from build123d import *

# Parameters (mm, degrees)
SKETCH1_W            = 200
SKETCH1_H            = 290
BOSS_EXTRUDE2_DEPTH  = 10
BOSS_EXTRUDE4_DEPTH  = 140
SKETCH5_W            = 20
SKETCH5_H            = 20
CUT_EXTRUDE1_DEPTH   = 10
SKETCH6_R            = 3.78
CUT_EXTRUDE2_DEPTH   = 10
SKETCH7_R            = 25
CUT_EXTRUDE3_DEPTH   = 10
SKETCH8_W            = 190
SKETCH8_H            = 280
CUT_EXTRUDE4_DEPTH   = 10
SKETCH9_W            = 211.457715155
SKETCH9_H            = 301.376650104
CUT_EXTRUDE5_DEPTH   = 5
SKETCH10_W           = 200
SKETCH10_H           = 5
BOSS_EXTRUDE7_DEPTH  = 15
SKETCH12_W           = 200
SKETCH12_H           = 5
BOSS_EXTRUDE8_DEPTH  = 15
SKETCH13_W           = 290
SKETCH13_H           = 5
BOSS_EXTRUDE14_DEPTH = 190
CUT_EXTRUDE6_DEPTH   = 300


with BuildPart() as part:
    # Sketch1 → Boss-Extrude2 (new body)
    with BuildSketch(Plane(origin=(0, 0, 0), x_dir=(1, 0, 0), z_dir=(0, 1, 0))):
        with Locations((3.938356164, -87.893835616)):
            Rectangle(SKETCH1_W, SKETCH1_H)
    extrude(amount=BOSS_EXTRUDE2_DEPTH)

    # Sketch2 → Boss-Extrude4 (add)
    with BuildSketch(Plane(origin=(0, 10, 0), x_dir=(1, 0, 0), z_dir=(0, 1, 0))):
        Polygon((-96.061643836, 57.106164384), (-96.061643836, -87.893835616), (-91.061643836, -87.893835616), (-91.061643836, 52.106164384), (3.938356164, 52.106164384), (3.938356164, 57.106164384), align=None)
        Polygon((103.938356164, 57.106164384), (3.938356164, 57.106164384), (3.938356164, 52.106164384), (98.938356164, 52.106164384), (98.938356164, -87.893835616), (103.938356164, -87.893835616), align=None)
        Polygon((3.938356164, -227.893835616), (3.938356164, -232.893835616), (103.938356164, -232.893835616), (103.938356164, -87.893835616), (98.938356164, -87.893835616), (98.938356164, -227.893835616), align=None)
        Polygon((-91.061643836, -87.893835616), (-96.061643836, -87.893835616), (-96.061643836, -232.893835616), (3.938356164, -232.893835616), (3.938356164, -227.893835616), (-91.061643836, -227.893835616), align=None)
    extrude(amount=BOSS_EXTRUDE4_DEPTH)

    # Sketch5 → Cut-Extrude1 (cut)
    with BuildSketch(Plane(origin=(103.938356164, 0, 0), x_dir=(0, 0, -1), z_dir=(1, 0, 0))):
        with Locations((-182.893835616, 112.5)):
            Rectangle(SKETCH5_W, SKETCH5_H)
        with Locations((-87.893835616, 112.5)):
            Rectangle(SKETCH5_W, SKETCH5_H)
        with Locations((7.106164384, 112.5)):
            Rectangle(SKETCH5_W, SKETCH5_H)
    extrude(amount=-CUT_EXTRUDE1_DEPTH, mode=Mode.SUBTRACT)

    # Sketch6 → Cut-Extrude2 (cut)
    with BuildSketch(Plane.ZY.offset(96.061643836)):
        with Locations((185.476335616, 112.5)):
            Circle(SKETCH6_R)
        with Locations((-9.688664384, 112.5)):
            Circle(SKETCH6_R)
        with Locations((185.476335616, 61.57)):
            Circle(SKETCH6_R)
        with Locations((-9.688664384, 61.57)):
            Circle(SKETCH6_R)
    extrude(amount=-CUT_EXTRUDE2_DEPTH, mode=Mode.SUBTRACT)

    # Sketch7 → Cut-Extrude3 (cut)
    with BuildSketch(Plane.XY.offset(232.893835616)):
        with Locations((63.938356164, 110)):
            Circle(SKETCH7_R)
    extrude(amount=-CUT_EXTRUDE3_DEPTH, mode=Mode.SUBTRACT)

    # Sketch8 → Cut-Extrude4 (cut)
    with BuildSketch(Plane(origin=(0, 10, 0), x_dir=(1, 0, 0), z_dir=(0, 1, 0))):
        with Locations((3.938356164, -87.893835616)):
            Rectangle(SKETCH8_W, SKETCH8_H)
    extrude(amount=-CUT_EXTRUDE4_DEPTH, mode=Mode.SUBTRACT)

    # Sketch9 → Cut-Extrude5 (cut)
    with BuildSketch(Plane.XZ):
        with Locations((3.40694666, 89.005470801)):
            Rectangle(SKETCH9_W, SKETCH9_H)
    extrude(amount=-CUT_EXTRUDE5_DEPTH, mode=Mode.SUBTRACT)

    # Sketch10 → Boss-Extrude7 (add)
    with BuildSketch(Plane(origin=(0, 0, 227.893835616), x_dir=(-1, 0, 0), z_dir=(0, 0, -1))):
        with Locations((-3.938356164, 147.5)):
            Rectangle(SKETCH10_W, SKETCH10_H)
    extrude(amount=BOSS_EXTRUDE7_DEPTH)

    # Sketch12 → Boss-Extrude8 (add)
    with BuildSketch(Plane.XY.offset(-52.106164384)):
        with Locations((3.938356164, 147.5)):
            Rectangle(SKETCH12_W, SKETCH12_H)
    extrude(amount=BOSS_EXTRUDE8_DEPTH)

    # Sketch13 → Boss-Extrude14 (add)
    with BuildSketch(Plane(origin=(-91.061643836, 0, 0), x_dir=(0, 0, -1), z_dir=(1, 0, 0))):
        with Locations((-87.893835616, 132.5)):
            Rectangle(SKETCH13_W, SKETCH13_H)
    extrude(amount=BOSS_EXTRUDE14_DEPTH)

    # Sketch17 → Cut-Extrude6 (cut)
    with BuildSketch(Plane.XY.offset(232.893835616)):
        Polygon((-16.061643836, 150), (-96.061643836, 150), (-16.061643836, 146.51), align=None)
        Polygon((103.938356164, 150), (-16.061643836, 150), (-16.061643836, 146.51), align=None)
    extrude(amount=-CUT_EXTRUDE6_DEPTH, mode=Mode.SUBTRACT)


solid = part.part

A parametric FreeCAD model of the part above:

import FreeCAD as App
import Part
import Sketcher

doc = App.newDocument("Part")
body = doc.addObject("PartDesign::Body", "Body")

# Sketch on XZ plane
sketch1 = doc.addObject("Sketcher::SketchObject", "Sketch")
body.addObject(sketch1)
sketch1.AttachmentSupport = (doc.XZ_Plane, [""])
sketch1.MapMode = "FlatFace"
sketch1.addGeometry([
    Part.LineSegment(App.Vector(-96, -57, 0), App.Vector(-96, 233, 0)),
    Part.LineSegment(App.Vector(-96, 233, 0), App.Vector(104, 233, 0)),
    Part.LineSegment(App.Vector(104, 233, 0), App.Vector(104, -57, 0)),
    Part.LineSegment(App.Vector(104, -57, 0), App.Vector(-96, -57, 0)),
], False)
sketch1.addConstraint([
    Sketcher.Constraint("Coincident", 0, 2, 1, 1),
    Sketcher.Constraint("Coincident", 1, 2, 2, 1),
    Sketcher.Constraint("Coincident", 2, 2, 3, 1),
    Sketcher.Constraint("Coincident", 3, 2, 0, 1),
    Sketcher.Constraint("Vertical", 0),
    Sketcher.Constraint("Horizontal", 1),
    Sketcher.Constraint("Vertical", 2),
    Sketcher.Constraint("Horizontal", 3),
    Sketcher.Constraint("DistanceX", 1, 1, 1, 2, 200.0),
    Sketcher.Constraint("DistanceY", 0, 1, 0, 2, 290.0),
    Sketcher.Constraint("DistanceX", 0, 2, -1, 1, 96.061644),
    Sketcher.Constraint("DistanceY", -1, 1, 0, 2, 232.893836),
])
pad1 = doc.addObject("PartDesign::Pad", "Pad")
body.addObject(pad1)
pad1.Profile = sketch1
pad1.Length = 10
pad1.Reversed = True

# Sketch on XZ plane
sketch2 = doc.addObject("Sketcher::SketchObject", "Sketch001")
body.addObject(sketch2)
sketch2.AttachmentSupport = (doc.XZ_Plane, [""])
sketch2.MapMode = "FlatFace"
sketch2.AttachmentOffset = App.Placement(App.Vector(0, 0, -10), App.Rotation())
sketch2.addGeometry([
    Part.LineSegment(App.Vector(-96, -57, 0), App.Vector(-96, 233, 0)),  # 0
    Part.LineSegment(App.Vector(-96, 233, 0), App.Vector(104, 233, 0)),  # 1
    Part.LineSegment(App.Vector(104, 233, 0), App.Vector(104, -57, 0)),  # 2
    Part.LineSegment(App.Vector(104, -57, 0), App.Vector(-96, -57, 0)),  # 3
    Part.LineSegment(App.Vector(-91, -52, 0), App.Vector(99, -52, 0)),  # 4
    Part.LineSegment(App.Vector(99, -52, 0), App.Vector(99, 228, 0)),  # 5
    Part.LineSegment(App.Vector(99, 228, 0), App.Vector(-91, 228, 0)),  # 6
    Part.LineSegment(App.Vector(-91, 228, 0), App.Vector(-91, -52, 0)),  # 7
], False)
sketch2.addConstraint([
    Sketcher.Constraint("Coincident", 0, 2, 1, 1),
    Sketcher.Constraint("Coincident", 1, 2, 2, 1),
    Sketcher.Constraint("Coincident", 2, 2, 3, 1),
    Sketcher.Constraint("Coincident", 3, 2, 0, 1),
    Sketcher.Constraint("Coincident", 4, 2, 5, 1),
    Sketcher.Constraint("Coincident", 5, 2, 6, 1),
    Sketcher.Constraint("Coincident", 6, 2, 7, 1),
    Sketcher.Constraint("Coincident", 7, 2, 4, 1),
    Sketcher.Constraint("Vertical", 0),
    Sketcher.Constraint("Horizontal", 1),
    Sketcher.Constraint("Vertical", 2),
    Sketcher.Constraint("Horizontal", 3),
    Sketcher.Constraint("Horizontal", 4),
    Sketcher.Constraint("Vertical", 5),
    Sketcher.Constraint("Horizontal", 6),
    Sketcher.Constraint("Vertical", 7),
    Sketcher.Constraint("DistanceX", 1, 1, 1, 2, 200.0),
    Sketcher.Constraint("DistanceX", 4, 1, 4, 2, 190.0),
    Sketcher.Constraint("DistanceY", 0, 1, 0, 2, 290.0),
    Sketcher.Constraint("DistanceY", 5, 1, 5, 2, 280.0),
    Sketcher.Constraint("DistanceX", 4, 2, 2, 2, 5.0),
    Sketcher.Constraint("DistanceY", 2, 2, 4, 2, 5.0),
    Sketcher.Constraint("DistanceX", 0, 2, -1, 1, 96.061644),
    Sketcher.Constraint("DistanceY", -1, 1, 0, 2, 232.893836),
])
pad2 = doc.addObject("PartDesign::Pad", "Pad001")
body.addObject(pad2)
pad2.Profile = sketch2
pad2.Length = 140
pad2.Reversed = True

# Sketch on YZ plane
sketch3 = doc.addObject("Sketcher::SketchObject", "Sketch002")
body.addObject(sketch3)
sketch3.AttachmentSupport = (doc.YZ_Plane, [""])
sketch3.MapMode = "FlatFace"
sketch3.AttachmentOffset = App.Placement(App.Vector(0, 0, 103.938356), App.Rotation())
sketch3.addGeometry([
    Part.LineSegment(App.Vector(122, 193, 0), App.Vector(102, 193, 0)),  # 0
    Part.LineSegment(App.Vector(102, 193, 0), App.Vector(102, 173, 0)),  # 1
    Part.LineSegment(App.Vector(102, 173, 0), App.Vector(122, 173, 0)),  # 2
    Part.LineSegment(App.Vector(122, 173, 0), App.Vector(122, 193, 0)),  # 3
    Part.LineSegment(App.Vector(122, 98, 0), App.Vector(102, 98, 0)),  # 4
    Part.LineSegment(App.Vector(102, 98, 0), App.Vector(102, 78, 0)),  # 5
    Part.LineSegment(App.Vector(102, 78, 0), App.Vector(122, 78, 0)),  # 6
    Part.LineSegment(App.Vector(122, 78, 0), App.Vector(122, 98, 0)),  # 7
    Part.LineSegment(App.Vector(122, 3, 0), App.Vector(102, 3, 0)),  # 8
    Part.LineSegment(App.Vector(102, 3, 0), App.Vector(102, -17, 0)),  # 9
    Part.LineSegment(App.Vector(102, -17, 0), App.Vector(122, -17, 0)),  # 10
    Part.LineSegment(App.Vector(122, -17, 0), App.Vector(122, 3, 0)),  # 11
], False)
sketch3.addConstraint([
    Sketcher.Constraint("Coincident", 0, 2, 1, 1),
    Sketcher.Constraint("Coincident", 1, 2, 2, 1),
    Sketcher.Constraint("Coincident", 2, 2, 3, 1),
    Sketcher.Constraint("Coincident", 3, 2, 0, 1),
    Sketcher.Constraint("Coincident", 4, 2, 5, 1),
    Sketcher.Constraint("Coincident", 5, 2, 6, 1),
    Sketcher.Constraint("Coincident", 6, 2, 7, 1),
    Sketcher.Constraint("Coincident", 7, 2, 4, 1),
    Sketcher.Constraint("Coincident", 8, 2, 9, 1),
    Sketcher.Constraint("Coincident", 9, 2, 10, 1),
    Sketcher.Constraint("Coincident", 10, 2, 11, 1),
    Sketcher.Constraint("Coincident", 11, 2, 8, 1),
    Sketcher.Constraint("Horizontal", 0),
    Sketcher.Constraint("Vertical", 1),
    Sketcher.Constraint("Horizontal", 2),
    Sketcher.Constraint("Vertical", 3),
    Sketcher.Constraint("Horizontal", 4),
    Sketcher.Constraint("Vertical", 5),
    Sketcher.Constraint("Horizontal", 6),
    Sketcher.Constraint("Vertical", 7),
    Sketcher.Constraint("Horizontal", 8),
    Sketcher.Constraint("Vertical", 9),
    Sketcher.Constraint("Horizontal", 10),
    Sketcher.Constraint("Vertical", 11),
    Sketcher.Constraint("Vertical", 1, 2, 4, 2),
    Sketcher.Constraint("Vertical", 3, 2, 6, 2),
    Sketcher.Constraint("Vertical", 5, 2, 8, 2),
    Sketcher.Constraint("Vertical", 7, 2, 10, 2),
    Sketcher.Constraint("Equal", 10, 1),
    Sketcher.Constraint("Equal", 3, 5),
    Sketcher.Constraint("Equal", 7, 9),
    Sketcher.Constraint("DistanceX", 0, 2, 0, 1, 20.0),
    Sketcher.Constraint("DistanceY", 4, 2, 1, 2, 75.0),
    Sketcher.Constraint("DistanceY", 8, 2, 5, 2, 75.0),
    Sketcher.Constraint("DistanceX", -1, 1, 0, 2, 102.5),
    Sketcher.Constraint("DistanceY", -1, 1, 0, 2, 192.893836),
])
pocket1 = doc.addObject("PartDesign::Pocket", "Pocket")
body.addObject(pocket1)
pocket1.Profile = sketch3
pocket1.Length = 10

# Sketch on YZ plane
sketch4 = doc.addObject("Sketcher::SketchObject", "Sketch003")
body.addObject(sketch4)
sketch4.AttachmentSupport = (doc.YZ_Plane, [""])
sketch4.MapMode = "FlatFace"
sketch4.AttachmentOffset = App.Placement(App.Vector(0, 0, -96.061644), App.Rotation())
sketch4.addGeometry([
    Part.Circle(App.Vector(112.5, 185.5, 0), App.Vector(0, 0, 1), 3.8),
    Part.Circle(App.Vector(112.5, -9.7, 0), App.Vector(0, 0, 1), 3.8),
    Part.Circle(App.Vector(61.6, 185.5, 0), App.Vector(0, 0, 1), 3.8),
    Part.Circle(App.Vector(61.6, -9.7, 0), App.Vector(0, 0, 1), 3.8),
], False)
sketch4.addConstraint([
    Sketcher.Constraint("Equal", 0, 1),
    Sketcher.Constraint("Equal", 1, 2),
    Sketcher.Constraint("Equal", 2, 3),
    Sketcher.Constraint("Horizontal", 0, 3, 2, 3),
    Sketcher.Constraint("Horizontal", 1, 3, 3, 3),
    Sketcher.Constraint("Vertical", 0, 3, 1, 3),
    Sketcher.Constraint("Vertical", 2, 3, 3, 3),
    Sketcher.Constraint("Diameter", 0, 7.56),
    Sketcher.Constraint("DistanceX", -1, 1, 0, 3, 112.5),
    Sketcher.Constraint("DistanceX", -1, 1, 2, 3, 61.57),
    Sketcher.Constraint("DistanceY", 1, 3, 0, 3, 195.165),
    Sketcher.Constraint("DistanceY", -1, 1, 0, 3, 185.476336),
])
pocket2 = doc.addObject("PartDesign::Pocket", "Pocket001")
body.addObject(pocket2)
pocket2.Profile = sketch4
pocket2.Length = 10
pocket2.Reversed = True

# Sketch on XY plane
sketch5 = doc.addObject("Sketcher::SketchObject", "Sketch004")
body.addObject(sketch5)
sketch5.AttachmentSupport = (doc.XY_Plane, [""])
sketch5.MapMode = "FlatFace"
sketch5.AttachmentOffset = App.Placement(App.Vector(0, 0, 232.893836), App.Rotation())
sketch5.addGeometry(Part.Circle(App.Vector(64, 110, 0), App.Vector(0, 0, 1), 25), False)
sketch5.addConstraint([
    Sketcher.Constraint("Diameter", 0, 50.0),
    Sketcher.Constraint("DistanceY", -1, 1, 0, 3, 110.0),
    Sketcher.Constraint("DistanceX", -1, 1, 0, 3, 63.938356),
])
pocket3 = doc.addObject("PartDesign::Pocket", "Pocket002")
body.addObject(pocket3)
pocket3.Profile = sketch5
pocket3.Length = 10

# Sketch on XZ plane
sketch6 = doc.addObject("Sketcher::SketchObject", "Sketch005")
body.addObject(sketch6)
sketch6.AttachmentSupport = (doc.XZ_Plane, [""])
sketch6.MapMode = "FlatFace"
sketch6.AttachmentOffset = App.Placement(App.Vector(0, 0, -10), App.Rotation())
sketch6.addGeometry([
    Part.LineSegment(App.Vector(-91, -52, 0), App.Vector(-91, 228, 0)),
    Part.LineSegment(App.Vector(-91, 228, 0), App.Vector(99, 228, 0)),
    Part.LineSegment(App.Vector(99, 228, 0), App.Vector(99, -52, 0)),
    Part.LineSegment(App.Vector(99, -52, 0), App.Vector(-91, -52, 0)),
], False)
sketch6.addConstraint([
    Sketcher.Constraint("Coincident", 0, 2, 1, 1),
    Sketcher.Constraint("Coincident", 1, 2, 2, 1),
    Sketcher.Constraint("Coincident", 2, 2, 3, 1),
    Sketcher.Constraint("Coincident", 3, 2, 0, 1),
    Sketcher.Constraint("Vertical", 0),
    Sketcher.Constraint("Horizontal", 1),
    Sketcher.Constraint("Vertical", 2),
    Sketcher.Constraint("Horizontal", 3),
    Sketcher.Constraint("DistanceX", 1, 1, 1, 2, 190.0),
    Sketcher.Constraint("DistanceY", 0, 1, 0, 2, 280.0),
    Sketcher.Constraint("DistanceX", 0, 2, -1, 1, 91.061644),
    Sketcher.Constraint("DistanceY", -1, 1, 0, 2, 227.893836),
])
pocket4 = doc.addObject("PartDesign::Pocket", "Pocket003")
body.addObject(pocket4)
pocket4.Profile = sketch6
pocket4.Length = 10
pocket4.Reversed = True

# Sketch on XZ plane
sketch7 = doc.addObject("Sketcher::SketchObject", "Sketch006")
body.addObject(sketch7)
sketch7.AttachmentSupport = (doc.XZ_Plane, [""])
sketch7.MapMode = "FlatFace"
sketch7.addGeometry([
    Part.LineSegment(App.Vector(-102, 240, 0), App.Vector(-102, -62, 0)),
    Part.LineSegment(App.Vector(-102, -62, 0), App.Vector(109, -62, 0)),
    Part.LineSegment(App.Vector(109, -62, 0), App.Vector(109, 240, 0)),
    Part.LineSegment(App.Vector(109, 240, 0), App.Vector(-102, 240, 0)),
], False)
sketch7.addConstraint([
    Sketcher.Constraint("Coincident", 0, 2, 1, 1),
    Sketcher.Constraint("Coincident", 1, 2, 2, 1),
    Sketcher.Constraint("Coincident", 2, 2, 3, 1),
    Sketcher.Constraint("Coincident", 3, 2, 0, 1),
    Sketcher.Constraint("Vertical", 0),
    Sketcher.Constraint("Horizontal", 1),
    Sketcher.Constraint("Vertical", 2),
    Sketcher.Constraint("Horizontal", 3),
    Sketcher.Constraint("DistanceY", 0, 2, 0, 1, 301.37665),
    Sketcher.Constraint("DistanceX", 1, 1, 1, 2, 211.457715),
    Sketcher.Constraint("DistanceX", 0, 2, -1, 1, 102.321911),
    Sketcher.Constraint("DistanceY", 0, 2, -1, 1, 61.682854),
])
pocket5 = doc.addObject("PartDesign::Pocket", "Pocket004")
body.addObject(pocket5)
pocket5.Profile = sketch7
pocket5.Length = 5

# Sketch on XY plane
sketch8 = doc.addObject("Sketcher::SketchObject", "Sketch007")
body.addObject(sketch8)
sketch8.AttachmentSupport = (doc.XY_Plane, [""])
sketch8.MapMode = "FlatFace"
sketch8.AttachmentOffset = App.Placement(App.Vector(0, 0, 227.893836), App.Rotation())
sketch8.addGeometry([
    Part.LineSegment(App.Vector(104, 150, 0), App.Vector(104, 145, 0)),
    Part.LineSegment(App.Vector(104, 145, 0), App.Vector(-96, 145, 0)),
    Part.LineSegment(App.Vector(-96, 145, 0), App.Vector(-96, 150, 0)),
    Part.LineSegment(App.Vector(-96, 150, 0), App.Vector(104, 150, 0)),
], False)
sketch8.addConstraint([
    Sketcher.Constraint("Coincident", 0, 2, 1, 1),
    Sketcher.Constraint("Coincident", 1, 2, 2, 1),
    Sketcher.Constraint("Coincident", 2, 2, 3, 1),
    Sketcher.Constraint("Coincident", 3, 2, 0, 1),
    Sketcher.Constraint("Vertical", 0),
    Sketcher.Constraint("Horizontal", 1),
    Sketcher.Constraint("Vertical", 2),
    Sketcher.Constraint("Horizontal", 3),
    Sketcher.Constraint("DistanceX", 1, 2, 1, 1, 200.0),
    Sketcher.Constraint("DistanceY", 0, 2, 0, 1, 5.0),
    Sketcher.Constraint("DistanceY", -1, 1, 0, 2, 145.0),
    Sketcher.Constraint("DistanceX", -1, 1, 0, 2, 103.938356),
])
pad3 = doc.addObject("PartDesign::Pad", "Pad002")
body.addObject(pad3)
pad3.Profile = sketch8
pad3.Length = 15
pad3.Reversed = True

# Sketch on XY plane
sketch9 = doc.addObject("Sketcher::SketchObject", "Sketch008")
body.addObject(sketch9)
sketch9.AttachmentSupport = (doc.XY_Plane, [""])
sketch9.MapMode = "FlatFace"
sketch9.AttachmentOffset = App.Placement(App.Vector(0, 0, -52.106164), App.Rotation())
sketch9.addGeometry([
    Part.LineSegment(App.Vector(-96, 150, 0), App.Vector(-96, 145, 0)),
    Part.LineSegment(App.Vector(-96, 145, 0), App.Vector(104, 145, 0)),
    Part.LineSegment(App.Vector(104, 145, 0), App.Vector(104, 150, 0)),
    Part.LineSegment(App.Vector(104, 150, 0), App.Vector(-96, 150, 0)),
], False)
sketch9.addConstraint([
    Sketcher.Constraint("Coincident", 0, 2, 1, 1),
    Sketcher.Constraint("Coincident", 1, 2, 2, 1),
    Sketcher.Constraint("Coincident", 2, 2, 3, 1),
    Sketcher.Constraint("Coincident", 3, 2, 0, 1),
    Sketcher.Constraint("Vertical", 0),
    Sketcher.Constraint("Horizontal", 1),
    Sketcher.Constraint("Vertical", 2),
    Sketcher.Constraint("Horizontal", 3),
    Sketcher.Constraint("DistanceX", 1, 1, 1, 2, 200.0),
    Sketcher.Constraint("DistanceY", 0, 2, 0, 1, 5.0),
    Sketcher.Constraint("DistanceY", -1, 1, 0, 2, 145.0),
    Sketcher.Constraint("DistanceX", 0, 2, -1, 1, 96.061644),
])
pad4 = doc.addObject("PartDesign::Pad", "Pad003")
body.addObject(pad4)
pad4.Profile = sketch9
pad4.Length = 15

# Sketch on YZ plane
sketch10 = doc.addObject("Sketcher::SketchObject", "Sketch009")
body.addObject(sketch10)
sketch10.AttachmentSupport = (doc.YZ_Plane, [""])
sketch10.MapMode = "FlatFace"
sketch10.AttachmentOffset = App.Placement(App.Vector(0, 0, -91.061644), App.Rotation())
sketch10.addGeometry([
    Part.LineSegment(App.Vector(135, 233, 0), App.Vector(130, 233, 0)),
    Part.LineSegment(App.Vector(130, 233, 0), App.Vector(130, -57, 0)),
    Part.LineSegment(App.Vector(130, -57, 0), App.Vector(135, -57, 0)),
    Part.LineSegment(App.Vector(135, -57, 0), App.Vector(135, 233, 0)),
], False)
sketch10.addConstraint([
    Sketcher.Constraint("Coincident", 0, 2, 1, 1),
    Sketcher.Constraint("Coincident", 1, 2, 2, 1),
    Sketcher.Constraint("Coincident", 2, 2, 3, 1),
    Sketcher.Constraint("Coincident", 3, 2, 0, 1),
    Sketcher.Constraint("Horizontal", 0),
    Sketcher.Constraint("Vertical", 1),
    Sketcher.Constraint("Horizontal", 2),
    Sketcher.Constraint("Vertical", 3),
    Sketcher.Constraint("DistanceX", 0, 2, 0, 1, 5.0),
    Sketcher.Constraint("DistanceY", 1, 2, 1, 1, 290.0),
    Sketcher.Constraint("DistanceX", -1, 1, 0, 2, 130.0),
    Sketcher.Constraint("DistanceY", -1, 1, 0, 2, 232.893836),
])
pad5 = doc.addObject("PartDesign::Pad", "Pad004")
body.addObject(pad5)
pad5.Profile = sketch10
pad5.Length = 190

# Sketch on XY plane
sketch11 = doc.addObject("Sketcher::SketchObject", "Sketch010")
body.addObject(sketch11)
sketch11.AttachmentSupport = (doc.XY_Plane, [""])
sketch11.MapMode = "FlatFace"
sketch11.AttachmentOffset = App.Placement(App.Vector(0, 0, 232.893836), App.Rotation())
sketch11.addGeometry([
    Part.LineSegment(App.Vector(-96, 150, 0), App.Vector(-16, 147, 0)),
    Part.LineSegment(App.Vector(-16, 147, 0), App.Vector(104, 150, 0)),
    Part.LineSegment(App.Vector(104, 150, 0), App.Vector(-96, 150, 0)),
], False)
sketch11.addConstraint([
    Sketcher.Constraint("Coincident", 0, 2, 1, 1),
    Sketcher.Constraint("Coincident", 1, 2, 2, 1),
    Sketcher.Constraint("Coincident", 2, 2, 0, 1),
    Sketcher.Constraint("Horizontal", 2),
    Sketcher.Constraint("DistanceX", 2, 2, 2, 1, 200.0),
    Sketcher.Constraint("DistanceY", -1, 1, 1, 2, 150.0),
    Sketcher.Constraint("DistanceX", 0, 2, 1, 2, 120.0),
    Sketcher.Constraint("DistanceY", -1, 1, 0, 2, 146.51),
    Sketcher.Constraint("DistanceX", 0, 2, -1, 1, 16.061644),
])
pocket6 = doc.addObject("PartDesign::Pocket", "Pocket005")
body.addObject(pocket6)
pocket6.Profile = sketch11
pocket6.Length = 300

doc.recompute()
